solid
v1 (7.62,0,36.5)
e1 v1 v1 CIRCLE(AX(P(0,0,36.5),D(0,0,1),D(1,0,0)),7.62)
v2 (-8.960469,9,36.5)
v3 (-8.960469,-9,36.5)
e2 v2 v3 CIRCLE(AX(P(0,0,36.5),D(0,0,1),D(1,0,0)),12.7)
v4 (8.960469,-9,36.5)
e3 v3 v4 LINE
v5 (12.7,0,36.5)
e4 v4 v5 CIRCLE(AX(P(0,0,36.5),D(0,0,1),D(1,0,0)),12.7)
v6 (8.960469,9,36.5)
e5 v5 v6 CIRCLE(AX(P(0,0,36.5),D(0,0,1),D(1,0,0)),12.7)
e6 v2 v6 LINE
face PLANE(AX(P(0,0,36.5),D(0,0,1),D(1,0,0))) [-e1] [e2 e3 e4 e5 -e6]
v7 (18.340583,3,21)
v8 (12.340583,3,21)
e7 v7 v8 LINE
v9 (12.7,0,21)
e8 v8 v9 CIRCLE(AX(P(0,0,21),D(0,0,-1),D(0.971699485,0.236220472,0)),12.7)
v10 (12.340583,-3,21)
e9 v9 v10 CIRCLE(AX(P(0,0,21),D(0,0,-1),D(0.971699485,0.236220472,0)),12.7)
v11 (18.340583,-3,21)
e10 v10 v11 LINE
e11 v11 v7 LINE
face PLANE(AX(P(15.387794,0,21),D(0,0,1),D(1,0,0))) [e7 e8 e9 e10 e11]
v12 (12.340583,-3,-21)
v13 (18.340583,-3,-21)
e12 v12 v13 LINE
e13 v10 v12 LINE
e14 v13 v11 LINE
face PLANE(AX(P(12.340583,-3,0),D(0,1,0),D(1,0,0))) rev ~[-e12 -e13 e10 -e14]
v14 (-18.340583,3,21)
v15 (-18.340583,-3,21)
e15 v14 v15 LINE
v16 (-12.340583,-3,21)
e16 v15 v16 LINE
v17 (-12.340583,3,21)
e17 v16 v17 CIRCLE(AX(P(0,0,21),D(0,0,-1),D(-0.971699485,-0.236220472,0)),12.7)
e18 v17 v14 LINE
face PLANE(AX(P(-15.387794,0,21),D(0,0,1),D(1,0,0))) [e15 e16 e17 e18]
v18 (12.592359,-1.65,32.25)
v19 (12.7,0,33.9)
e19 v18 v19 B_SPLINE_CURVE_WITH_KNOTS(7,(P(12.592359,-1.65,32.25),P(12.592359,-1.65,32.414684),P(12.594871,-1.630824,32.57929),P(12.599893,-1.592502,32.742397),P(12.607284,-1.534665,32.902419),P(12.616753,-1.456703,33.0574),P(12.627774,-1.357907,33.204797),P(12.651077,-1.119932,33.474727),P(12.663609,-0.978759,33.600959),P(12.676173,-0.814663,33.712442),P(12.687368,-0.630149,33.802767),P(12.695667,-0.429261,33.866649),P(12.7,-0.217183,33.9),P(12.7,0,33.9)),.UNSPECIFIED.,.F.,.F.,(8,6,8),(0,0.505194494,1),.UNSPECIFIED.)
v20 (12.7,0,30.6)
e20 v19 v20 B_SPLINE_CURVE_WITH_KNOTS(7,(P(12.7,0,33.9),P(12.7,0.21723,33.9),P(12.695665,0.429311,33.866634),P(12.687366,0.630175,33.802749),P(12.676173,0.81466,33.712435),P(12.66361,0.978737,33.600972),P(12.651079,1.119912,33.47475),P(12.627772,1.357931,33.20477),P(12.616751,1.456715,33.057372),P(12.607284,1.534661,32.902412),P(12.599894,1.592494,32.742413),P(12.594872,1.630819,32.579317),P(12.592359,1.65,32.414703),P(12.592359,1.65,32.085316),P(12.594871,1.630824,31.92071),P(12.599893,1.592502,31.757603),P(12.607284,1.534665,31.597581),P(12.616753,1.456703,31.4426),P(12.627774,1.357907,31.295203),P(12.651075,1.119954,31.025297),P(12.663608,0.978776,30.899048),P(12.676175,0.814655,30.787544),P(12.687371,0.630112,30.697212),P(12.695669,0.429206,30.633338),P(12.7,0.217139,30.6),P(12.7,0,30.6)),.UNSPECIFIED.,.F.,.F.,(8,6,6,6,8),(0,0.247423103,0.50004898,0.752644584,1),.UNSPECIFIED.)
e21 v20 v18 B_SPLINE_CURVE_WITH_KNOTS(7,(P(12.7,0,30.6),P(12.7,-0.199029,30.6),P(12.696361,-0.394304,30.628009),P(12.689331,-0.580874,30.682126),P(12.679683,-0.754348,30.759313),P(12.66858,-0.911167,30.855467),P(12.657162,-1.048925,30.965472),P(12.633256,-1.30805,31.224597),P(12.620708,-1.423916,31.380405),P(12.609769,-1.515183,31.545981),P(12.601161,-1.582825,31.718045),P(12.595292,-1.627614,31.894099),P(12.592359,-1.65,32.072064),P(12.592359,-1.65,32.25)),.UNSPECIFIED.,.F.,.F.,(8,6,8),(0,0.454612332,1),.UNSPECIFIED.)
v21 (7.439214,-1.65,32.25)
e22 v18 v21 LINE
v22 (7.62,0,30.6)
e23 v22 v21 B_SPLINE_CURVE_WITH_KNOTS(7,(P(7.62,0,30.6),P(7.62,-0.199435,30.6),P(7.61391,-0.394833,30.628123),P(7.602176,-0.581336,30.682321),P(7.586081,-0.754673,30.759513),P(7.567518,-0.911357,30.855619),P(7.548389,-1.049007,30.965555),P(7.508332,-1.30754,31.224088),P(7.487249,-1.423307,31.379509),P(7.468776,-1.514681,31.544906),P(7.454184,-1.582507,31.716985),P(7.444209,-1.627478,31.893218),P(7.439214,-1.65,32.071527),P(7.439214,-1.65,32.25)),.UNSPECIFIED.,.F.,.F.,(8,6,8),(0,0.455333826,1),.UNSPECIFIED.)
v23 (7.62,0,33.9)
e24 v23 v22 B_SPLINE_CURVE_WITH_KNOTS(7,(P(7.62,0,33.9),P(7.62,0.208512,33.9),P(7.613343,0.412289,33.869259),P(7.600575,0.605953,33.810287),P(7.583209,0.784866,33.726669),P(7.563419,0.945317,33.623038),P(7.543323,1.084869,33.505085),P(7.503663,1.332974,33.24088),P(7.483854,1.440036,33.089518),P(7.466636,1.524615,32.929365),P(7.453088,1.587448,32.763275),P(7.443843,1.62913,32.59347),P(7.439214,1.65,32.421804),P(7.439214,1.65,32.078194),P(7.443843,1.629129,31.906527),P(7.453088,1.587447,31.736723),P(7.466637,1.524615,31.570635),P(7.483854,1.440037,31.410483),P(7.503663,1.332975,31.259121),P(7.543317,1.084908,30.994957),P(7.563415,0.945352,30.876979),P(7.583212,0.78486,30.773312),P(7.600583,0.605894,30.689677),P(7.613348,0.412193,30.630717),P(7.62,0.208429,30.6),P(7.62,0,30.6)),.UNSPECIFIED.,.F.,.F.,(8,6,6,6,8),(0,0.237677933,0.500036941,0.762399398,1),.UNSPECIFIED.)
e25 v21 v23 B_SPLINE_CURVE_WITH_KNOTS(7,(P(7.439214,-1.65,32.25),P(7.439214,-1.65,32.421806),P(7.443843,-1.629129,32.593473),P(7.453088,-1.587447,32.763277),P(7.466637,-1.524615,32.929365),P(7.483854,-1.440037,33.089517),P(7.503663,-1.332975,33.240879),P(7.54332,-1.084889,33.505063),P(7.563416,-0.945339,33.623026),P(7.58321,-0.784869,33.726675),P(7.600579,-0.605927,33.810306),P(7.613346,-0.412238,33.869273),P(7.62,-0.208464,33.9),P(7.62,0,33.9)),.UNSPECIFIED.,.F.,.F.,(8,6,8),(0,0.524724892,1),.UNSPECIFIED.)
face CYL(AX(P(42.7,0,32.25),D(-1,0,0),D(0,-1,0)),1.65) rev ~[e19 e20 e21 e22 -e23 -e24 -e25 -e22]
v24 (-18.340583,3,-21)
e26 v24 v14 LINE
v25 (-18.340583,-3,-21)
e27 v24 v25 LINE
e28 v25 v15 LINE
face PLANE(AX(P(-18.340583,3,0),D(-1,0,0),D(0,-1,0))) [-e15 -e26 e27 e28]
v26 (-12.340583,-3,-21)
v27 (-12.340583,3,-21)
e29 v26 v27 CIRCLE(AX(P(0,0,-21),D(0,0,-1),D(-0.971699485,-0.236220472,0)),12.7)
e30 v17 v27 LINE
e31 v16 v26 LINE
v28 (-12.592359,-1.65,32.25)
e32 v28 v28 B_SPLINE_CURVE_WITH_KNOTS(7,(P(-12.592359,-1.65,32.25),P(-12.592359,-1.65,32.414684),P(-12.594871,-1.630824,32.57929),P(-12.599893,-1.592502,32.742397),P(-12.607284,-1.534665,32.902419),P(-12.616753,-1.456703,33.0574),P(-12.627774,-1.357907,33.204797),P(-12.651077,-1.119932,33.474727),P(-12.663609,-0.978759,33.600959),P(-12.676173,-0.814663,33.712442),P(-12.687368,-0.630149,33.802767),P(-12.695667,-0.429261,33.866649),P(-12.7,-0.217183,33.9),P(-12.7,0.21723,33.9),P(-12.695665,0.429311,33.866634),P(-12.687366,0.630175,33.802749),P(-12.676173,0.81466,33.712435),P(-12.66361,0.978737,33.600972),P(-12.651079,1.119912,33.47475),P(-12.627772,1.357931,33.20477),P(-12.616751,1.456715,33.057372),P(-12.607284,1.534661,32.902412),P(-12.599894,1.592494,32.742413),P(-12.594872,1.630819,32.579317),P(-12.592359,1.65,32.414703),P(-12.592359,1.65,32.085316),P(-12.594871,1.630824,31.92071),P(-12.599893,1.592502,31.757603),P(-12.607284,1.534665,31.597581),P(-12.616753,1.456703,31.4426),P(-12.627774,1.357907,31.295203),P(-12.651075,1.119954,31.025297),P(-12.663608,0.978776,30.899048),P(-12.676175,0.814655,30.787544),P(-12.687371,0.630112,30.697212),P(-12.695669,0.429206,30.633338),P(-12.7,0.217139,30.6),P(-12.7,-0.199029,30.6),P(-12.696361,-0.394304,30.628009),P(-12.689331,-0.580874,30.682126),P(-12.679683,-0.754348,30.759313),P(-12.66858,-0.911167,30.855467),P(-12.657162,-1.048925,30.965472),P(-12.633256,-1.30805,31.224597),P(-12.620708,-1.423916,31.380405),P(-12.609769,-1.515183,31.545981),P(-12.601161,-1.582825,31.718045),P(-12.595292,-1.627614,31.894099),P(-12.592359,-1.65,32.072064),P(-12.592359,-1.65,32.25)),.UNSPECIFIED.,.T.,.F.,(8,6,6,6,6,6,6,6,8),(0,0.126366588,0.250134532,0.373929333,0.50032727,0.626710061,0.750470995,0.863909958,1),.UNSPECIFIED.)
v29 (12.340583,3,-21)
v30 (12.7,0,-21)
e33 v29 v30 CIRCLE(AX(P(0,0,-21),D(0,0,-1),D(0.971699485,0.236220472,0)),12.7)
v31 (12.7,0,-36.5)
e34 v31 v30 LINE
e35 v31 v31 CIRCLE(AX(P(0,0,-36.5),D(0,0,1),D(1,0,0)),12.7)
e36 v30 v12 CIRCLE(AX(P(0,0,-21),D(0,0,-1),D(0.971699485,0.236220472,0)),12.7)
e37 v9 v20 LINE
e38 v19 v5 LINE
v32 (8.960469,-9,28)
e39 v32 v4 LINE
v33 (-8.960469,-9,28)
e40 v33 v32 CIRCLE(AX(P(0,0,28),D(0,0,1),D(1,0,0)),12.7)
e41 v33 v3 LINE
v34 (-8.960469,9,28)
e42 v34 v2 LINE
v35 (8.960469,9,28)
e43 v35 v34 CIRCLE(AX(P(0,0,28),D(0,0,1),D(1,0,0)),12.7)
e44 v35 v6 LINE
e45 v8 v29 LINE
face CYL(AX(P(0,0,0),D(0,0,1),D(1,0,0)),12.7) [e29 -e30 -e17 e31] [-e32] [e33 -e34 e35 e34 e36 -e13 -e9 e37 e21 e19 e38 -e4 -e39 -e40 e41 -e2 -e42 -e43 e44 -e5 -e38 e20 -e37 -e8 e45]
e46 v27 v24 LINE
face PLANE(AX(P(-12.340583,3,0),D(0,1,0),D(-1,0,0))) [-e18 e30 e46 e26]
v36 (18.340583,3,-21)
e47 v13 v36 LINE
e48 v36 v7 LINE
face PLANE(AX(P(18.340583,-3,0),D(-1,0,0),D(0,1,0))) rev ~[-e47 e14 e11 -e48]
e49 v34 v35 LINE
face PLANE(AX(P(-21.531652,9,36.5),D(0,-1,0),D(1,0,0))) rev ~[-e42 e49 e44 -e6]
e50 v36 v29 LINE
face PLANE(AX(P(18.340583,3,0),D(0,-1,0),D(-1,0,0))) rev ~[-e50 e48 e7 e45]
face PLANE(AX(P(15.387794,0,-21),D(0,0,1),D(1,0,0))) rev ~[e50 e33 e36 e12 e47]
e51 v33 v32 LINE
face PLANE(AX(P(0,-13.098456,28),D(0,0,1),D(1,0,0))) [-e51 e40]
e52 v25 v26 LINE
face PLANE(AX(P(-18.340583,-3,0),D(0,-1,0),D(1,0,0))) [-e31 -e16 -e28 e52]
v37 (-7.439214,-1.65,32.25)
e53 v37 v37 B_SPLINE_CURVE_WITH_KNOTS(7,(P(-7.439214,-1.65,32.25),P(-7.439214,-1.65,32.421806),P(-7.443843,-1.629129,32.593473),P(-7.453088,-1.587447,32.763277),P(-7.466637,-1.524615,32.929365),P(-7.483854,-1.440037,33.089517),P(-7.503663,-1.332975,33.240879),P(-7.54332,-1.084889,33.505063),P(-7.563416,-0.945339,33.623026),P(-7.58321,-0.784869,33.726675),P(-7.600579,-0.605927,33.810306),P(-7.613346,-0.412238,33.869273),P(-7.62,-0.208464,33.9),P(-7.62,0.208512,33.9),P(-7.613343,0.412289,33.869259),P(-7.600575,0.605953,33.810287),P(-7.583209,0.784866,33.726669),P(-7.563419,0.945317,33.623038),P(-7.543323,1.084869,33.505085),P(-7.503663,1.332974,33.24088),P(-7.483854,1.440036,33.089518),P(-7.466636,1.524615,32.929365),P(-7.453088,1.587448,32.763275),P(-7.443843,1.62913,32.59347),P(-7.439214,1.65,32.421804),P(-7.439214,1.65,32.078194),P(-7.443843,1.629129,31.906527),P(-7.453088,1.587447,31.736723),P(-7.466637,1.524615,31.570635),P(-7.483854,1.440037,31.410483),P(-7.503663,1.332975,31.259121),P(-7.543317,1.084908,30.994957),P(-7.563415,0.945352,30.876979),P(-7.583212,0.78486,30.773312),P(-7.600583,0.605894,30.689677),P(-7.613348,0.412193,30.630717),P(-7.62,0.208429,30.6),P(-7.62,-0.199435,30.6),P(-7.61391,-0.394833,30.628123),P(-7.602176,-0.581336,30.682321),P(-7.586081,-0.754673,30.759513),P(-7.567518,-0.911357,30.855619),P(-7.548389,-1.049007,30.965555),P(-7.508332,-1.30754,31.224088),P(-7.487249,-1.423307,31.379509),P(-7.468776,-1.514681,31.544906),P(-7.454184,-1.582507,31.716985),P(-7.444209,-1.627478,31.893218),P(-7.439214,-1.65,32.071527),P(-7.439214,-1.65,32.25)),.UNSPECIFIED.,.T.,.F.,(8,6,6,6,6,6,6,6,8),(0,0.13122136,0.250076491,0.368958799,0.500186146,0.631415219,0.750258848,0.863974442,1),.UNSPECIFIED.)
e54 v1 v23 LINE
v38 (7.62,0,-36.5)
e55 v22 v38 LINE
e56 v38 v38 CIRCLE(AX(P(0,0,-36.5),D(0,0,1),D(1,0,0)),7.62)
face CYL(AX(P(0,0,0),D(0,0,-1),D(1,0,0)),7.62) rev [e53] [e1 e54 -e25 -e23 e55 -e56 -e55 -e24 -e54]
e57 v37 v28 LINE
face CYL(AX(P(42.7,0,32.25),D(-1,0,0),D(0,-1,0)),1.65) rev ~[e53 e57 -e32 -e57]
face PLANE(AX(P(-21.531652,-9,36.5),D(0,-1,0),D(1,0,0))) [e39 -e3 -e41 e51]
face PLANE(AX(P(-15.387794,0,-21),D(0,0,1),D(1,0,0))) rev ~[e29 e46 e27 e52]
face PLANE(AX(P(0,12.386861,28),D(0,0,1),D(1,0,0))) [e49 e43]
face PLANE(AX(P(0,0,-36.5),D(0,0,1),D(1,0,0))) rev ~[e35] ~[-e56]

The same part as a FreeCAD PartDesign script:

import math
import FreeCAD as App
import Part
import Sketcher
from FreeCAD import Vector
Q = App.Units.Quantity

doc = App.newDocument("Part")
params = doc.addObject("Spreadsheet::Sheet", "Params")
for row, (alias, value) in enumerate([
    ("sketch1_diameter", "25.4 mm"),
    ("sketch1_diameter2", "15.24 mm"),
    ("pad1_length", "73 mm"),
    ("sketch2_radius", "12.7 mm"),
    ("sketch2_width", "6 mm"),
    ("pad2_length", "42 mm"),
    ("pocket1_length", "8.5 mm"),
    ("sketch4_diameter", "3.3 mm"),
    ("hole_diameter", "3.3 mm"),
    ("hole_depth", "30 mm"),
], start=1):
    params.set(f"A{row}", alias)
    params.set(f"B{row}", "=" + value)
    params.setAlias(f"B{row}", alias)

body = doc.addObject("PartDesign::Body", "Body")

sketch1 = body.newObject("Sketcher::SketchObject", "Sketch")
sketch1.AttachmentSupport = (doc.getObject("XY_Plane"), [""])
sketch1.MapMode = "FlatFace"
sketch1.addGeometry([
    Part.Circle(Vector(0, 0, 0), Vector(0, 0, 1), 12.7),
    Part.Circle(Vector(0, 0, 0), Vector(0, 0, 1), 7.62),
], False)
sketch1.addConstraint([
    Sketcher.Constraint("Coincident", 0, 3, -1, 1),
    Sketcher.Constraint("Coincident", 1, 3, -1, 1),
    Sketcher.Constraint("Diameter", 0, Q("25.4 mm")),
    Sketcher.Constraint("Diameter", 1, Q("15.24 mm")),
])
sketch1.setExpression("Constraints[2]", "Params.sketch1_diameter")
sketch1.setExpression("Constraints[3]", "Params.sketch1_diameter2")
pad1 = body.newObject("PartDesign::Pad", "Pad")
pad1.Profile = sketch1
pad1.setExpression("Length", "Params.pad1_length")
pad1.Midplane = True

sketch2 = body.newObject("Sketcher::SketchObject", "Sketch001")
sketch2.AttachmentSupport = (doc.getObject("XY_Plane"), [""])
sketch2.MapMode = "FlatFace"
sketch2.addGeometry([
    Part.LineSegment(Vector(12.340583, -3, 0), Vector(18.340583, -3, 0)),
    Part.LineSegment(Vector(18.340583, -3, 0), Vector(18.340583, 3, 0)),
    Part.LineSegment(Vector(18.340583, 3, 0), Vector(12.340583, 3, 0)),
    Part.ArcOfCircle(Part.Circle(Vector(0, 0, 0), Vector(0, 0, 1), 12.7), math.radians(-13.663576), math.radians(13.663576)),
    Part.LineSegment(Vector(-12.340583, 3, 0), Vector(-18.340583, 3, 0)),
    Part.LineSegment(Vector(-18.340583, 3, 0), Vector(-18.340583, -3, 0)),
    Part.LineSegment(Vector(-18.340583, -3, 0), Vector(-12.340583, -3, 0)),
    Part.ArcOfCircle(Part.Circle(Vector(0, 0, 0), Vector(0, 0, 1), 12.7), math.radians(166.336424), math.radians(193.663576)),
], False)
sketch2.addConstraint([
    Sketcher.Constraint("Coincident", 0, 2, 1, 1),
    Sketcher.Constraint("Coincident", 1, 2, 2, 1),
    Sketcher.Constraint("Coincident", 2, 2, 3, 2),
    Sketcher.Constraint("Coincident", 3, 1, 0, 1),
    Sketcher.Constraint("Coincident", 4, 2, 5, 1),
    Sketcher.Constraint("Coincident", 5, 2, 6, 1),
    Sketcher.Constraint("Coincident", 6, 2, 7, 2),
    Sketcher.Constraint("Coincident", 7, 1, 4, 1),
    Sketcher.Constraint("Horizontal", 0),
    Sketcher.Constraint("Vertical", 1),
    Sketcher.Constraint("Horizontal", 2),
    Sketcher.Constraint("Horizontal", 4),
    Sketcher.Constraint("Vertical", 5),
    Sketcher.Constraint("Horizontal", 6),
    Sketcher.Constraint("Coincident", 3, 3, -1, 1),
    Sketcher.Constraint("Coincident", 7, 3, -1, 1),
    Sketcher.Constraint("Equal", 3, 7),
    Sketcher.Constraint("Symmetric", 0, 2, 4, 2, -1, 1),
    Sketcher.Constraint("Horizontal", 2, 2, 4, 2),
    Sketcher.Constraint("Horizontal", 3, 1, 5, 2),
    Sketcher.Constraint("Equal", 6, 1),
    Sketcher.Constraint("Radius", 3, Q("12.7 mm")),
    Sketcher.Constraint("DistanceX", 0, 1, 0, 2, Q("6 mm")),
])
sketch2.setExpression("Constraints[21]", "Params.sketch2_radius")
sketch2.setExpression("Constraints[22]", "Params.sketch2_width")
pad2 = body.newObject("PartDesign::Pad", "Pad001")
pad2.Profile = sketch2
pad2.setExpression("Length", "Params.pad2_length")
pad2.Midplane = True

sketch3 = body.newObject("Sketcher::SketchObject", "Sketch002")
sketch3.AttachmentSupport = (doc.getObject("XY_Plane"), [""])
sketch3.MapMode = "FlatFace"
sketch3.AttachmentOffset = App.Placement(Vector(0, 0, 36.5), App.Rotation())
sketch3.addGeometry([
    Part.LineSegment(Vector(-21.531652, -9, 0), Vector(-21.531652, -17.196912, 0)),
    Part.LineSegment(Vector(-21.531652, -17.196912, 0), Vector(21.531652, -17.196912, 0)),
    Part.LineSegment(Vector(21.531652, -17.196912, 0), Vector(21.531652, -9, 0)),
    Part.LineSegment(Vector(21.531652, -9, 0), Vector(-21.531652, -9, 0)),
    Part.LineSegment(Vector(-21.531652, 15.773721, 0), Vector(-21.531652, 9, 0)),
    Part.LineSegment(Vector(-21.531652, 9, 0), Vector(21.531652, 9, 0)),
    Part.LineSegment(Vector(21.531652, 9, 0), Vector(21.531652, 15.773721, 0)),
    Part.LineSegment(Vector(21.531652, 15.773721, 0), Vector(-21.531652, 15.773721, 0)),
], False)
sketch3.addConstraint([
    Sketcher.Constraint("Coincident", 0, 2, 1, 1),
    Sketcher.Constraint("Coincident", 1, 2, 2, 1),
    Sketcher.Constraint("Coincident", 2, 2, 3, 1),
    Sketcher.Constraint("Coincident", 3, 2, 0, 1),
    Sketcher.Constraint("Coincident", 4, 2, 5, 1),
    Sketcher.Constraint("Coincident", 5, 2, 6, 1),
    Sketcher.Constraint("Coincident", 6, 2, 7, 1),
    Sketcher.Constraint("Coincident", 7, 2, 4, 1),
    Sketcher.Constraint("Vertical", 0),
    Sketcher.Constraint("Horizontal", 1),
    Sketcher.Constraint("Vertical", 2),
    Sketcher.Constraint("Horizontal", 3),
    Sketcher.Constraint("Vertical", 4),
    Sketcher.Constraint("Horizontal", 5),
    Sketcher.Constraint("Vertical", 6),
    Sketcher.Constraint("Horizontal", 7),
    Sketcher.Constraint("Symmetric", 2, 2, 4, 2, -1, 1),
    Sketcher.Constraint("Vertical", 3, 2, 4, 2),
    Sketcher.Constraint("Vertical", 2, 2, 5, 2),
    Sketcher.Constraint("DistanceY", 2, 2, -1, 1, Q("9 mm")),
    Sketcher.Constraint("DistanceY", 4, 2, 4, 1, Q("6.773721 mm")),
    Sketcher.Constraint("DistanceX", 1, 1, 1, 2, Q("43.063305 mm")),
    Sketcher.Constraint("DistanceY", 0, 2, 0, 1, Q("8.196912 mm")),
])
pocket1 = body.newObject("PartDesign::Pocket", "Pocket")
pocket1.Profile = sketch3
pocket1.setExpression("Length", "Params.pocket1_length")

sketch4 = body.newObject("Sketcher::SketchObject", "Sketch003")
sketch4.AttachmentSupport = (doc.getObject("YZ_Plane"), [""])
sketch4.MapMode = "FlatFace"
sketch4.AttachmentOffset = App.Placement(Vector(0, 0, 12.7), App.Rotation())
sketch4.addGeometry(Part.Circle(Vector(0, 32.25, 0), Vector(0, 0, 1), 1.65), False)
sketch4.addConstraint([
    Sketcher.Constraint("PointOnObject", 0, 3, -2),
    Sketcher.Constraint("Diameter", 0, Q("3.3 mm")),
    Sketcher.Constraint("DistanceY", -1, 1, 0, 3, Q("32.25 mm")),
])
sketch4.setExpression("Constraints[1]", "Params.sketch4_diameter")
doc.recompute()
hole = body.newObject("PartDesign::Hole", "Hole")
hole.Profile = sketch4
hole.ThreadType = "None"
hole.setExpression("Diameter", "Params.hole_diameter")
hole.DepthType = "Dimension"
hole.setExpression("Depth", "Params.hole_depth")
hole.DrillPoint = "Angled"
hole.DrillPointAngle = 118

doc.recompute()
